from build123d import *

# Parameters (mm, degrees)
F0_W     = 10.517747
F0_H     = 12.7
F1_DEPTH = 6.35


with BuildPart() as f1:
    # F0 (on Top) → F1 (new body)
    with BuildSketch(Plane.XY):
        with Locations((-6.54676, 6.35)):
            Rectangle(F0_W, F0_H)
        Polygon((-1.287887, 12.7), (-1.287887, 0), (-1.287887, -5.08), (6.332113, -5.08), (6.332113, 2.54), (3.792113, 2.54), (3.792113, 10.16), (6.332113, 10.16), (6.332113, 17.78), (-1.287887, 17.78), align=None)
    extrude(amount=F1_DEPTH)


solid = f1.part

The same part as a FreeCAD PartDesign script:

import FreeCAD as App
import Part
import Sketcher
from FreeCAD import Vector
Q = App.Units.Quantity

doc = App.newDocument("Part")
params = doc.addObject("Spreadsheet::Sheet", "Params")
for row, (alias, value) in enumerate([
    ("sketch1_width", "0.3 in"),
    ("sketch1_width2", "0.1 in"),
    ("sketch1_height", "0.5 in"),
    ("pad1_length", "0.25 in"),
], start=1):
    params.set(f"A{row}", alias)
    params.set(f"B{row}", "=" + value)
    params.setAlias(f"B{row}", alias)

body = doc.addObject("PartDesign::Body", "Body")

# Sketch on XY plane
sketch1 = body.newObject("Sketcher::SketchObject", "Sketch")
sketch1.AttachmentSupport = (doc.getObject("XY_Plane"), [""])
sketch1.MapMode = "FlatFace"
sketch1.addGeometry(Part.LineSegment(Vector(-11.8, 12.7, 0), Vector(-11.8, 0, 0)), False)
sketch1.addGeometry(Part.LineSegment(Vector(-11.8, 0, 0), Vector(-1.3, 0, 0)), False)
sketch1.addGeometry(Part.LineSegment(Vector(-1.3, 0, 0), Vector(-1.3, -5.1, 0)), False)
sketch1.addGeometry(Part.LineSegment(Vector(-1.3, -5.1, 0), Vector(6.3, -5.1, 0)), False)
sketch1.addGeometry(Part.LineSegment(Vector(6.3, -5.1, 0), Vector(6.3, 2.5, 0)), False)
sketch1.addGeometry(Part.LineSegment(Vector(6.3, 2.5, 0), Vector(3.8, 2.5, 0)), False)
sketch1.addGeometry(Part.LineSegment(Vector(3.8, 2.5, 0), Vector(3.8, 10.2, 0)), False)
sketch1.addGeometry(Part.LineSegment(Vector(3.8, 10.2, 0), Vector(6.3, 10.2, 0)), False)
sketch1.addGeometry(Part.LineSegment(Vector(6.3, 10.2, 0), Vector(6.3, 17.8, 0)), False)
sketch1.addGeometry(Part.LineSegment(Vector(6.3, 17.8, 0), Vector(-1.3, 17.8, 0)), False)
sketch1.addGeometry(Part.LineSegment(Vector(-1.3, 17.8, 0), Vector(-1.3, 12.7, 0)), False)
sketch1.addGeometry(Part.LineSegment(Vector(-1.3, 12.7, 0), Vector(-11.8, 12.7, 0)), False)
sketch1.addConstraint(Sketcher.Constraint("Coincident", 0, 2, 1, 1))
sketch1.addConstraint(Sketcher.Constraint("Coincident", 1, 2, 2, 1))
sketch1.addConstraint(Sketcher.Constraint("Coincident", 2, 2, 3, 1))
sketch1.addConstraint(Sketcher.Constraint("Coincident", 3, 2, 4, 1))
sketch1.addConstraint(Sketcher.Constraint("Coincident", 4, 2, 5, 1))
sketch1.addConstraint(Sketcher.Constraint("Coincident", 5, 2, 6, 1))
sketch1.addConstraint(Sketcher.Constraint("Coincident", 6, 2, 7, 1))
sketch1.addConstraint(Sketcher.Constraint("Coincident", 7, 2, 8, 1))
sketch1.addConstraint(Sketcher.Constraint("Coincident", 8, 2, 9, 1))
sketch1.addConstraint(Sketcher.Constraint("Coincident", 9, 2, 10, 1))
sketch1.addConstraint(Sketcher.Constraint("Coincident", 10, 2, 11, 1))
sketch1.addConstraint(Sketcher.Constraint("Coincident", 11, 2, 0, 1))
sketch1.addConstraint(Sketcher.Constraint("Vertical", 0))
sketch1.addConstraint(Sketcher.Constraint("Horizontal", 1))
sketch1.addConstraint(Sketcher.Constraint("Vertical", 2))
sketch1.addConstraint(Sketcher.Constraint("Horizontal", 3))
sketch1.addConstraint(Sketcher.Constraint("Vertical", 4))
sketch1.addConstraint(Sketcher.Constraint("Horizontal", 5))
sketch1.addConstraint(Sketcher.Constraint("Vertical", 6))
sketch1.addConstraint(Sketcher.Constraint("Horizontal", 7))
sketch1.addConstraint(Sketcher.Constraint("Vertical", 8))
sketch1.addConstraint(Sketcher.Constraint("Horizontal", 9))
sketch1.addConstraint(Sketcher.Constraint("Vertical", 10))
sketch1.addConstraint(Sketcher.Constraint("Horizontal", 11))
sketch1.addConstraint(Sketcher.Constraint("PointOnObject", 0, 2, -1))
sketch1.addConstraint(Sketcher.Constraint("Vertical", 4, 2, 7, 2))
sketch1.addConstraint(Sketcher.Constraint("Vertical", 2, 2, 9, 2))
sketch1.addConstraint(Sketcher.Constraint("Equal", 9, 4))
sketch1.addConstraint(Sketcher.Constraint("Equal", 4, 6))
sketch1.addConstraint(Sketcher.Constraint("Equal", 6, 8))
sketch1.addConstraint(Sketcher.Constraint("Equal", 2, 10))
sketch1.addConstraint(Sketcher.Constraint("DistanceX", 3, 1, 3, 2, Q("0.3 in")))
sketch1.addConstraint(Sketcher.Constraint("DistanceX", 5, 2, 5, 1, Q("0.1 in")))
sketch1.addConstraint(Sketcher.Constraint("DistanceY", 0, 2, 0, 1, Q("0.5 in")))
sketch1.addConstraint(Sketcher.Constraint("DistanceX", 1, 1, 1, 2, 10.517747))
sketch1.addConstraint(Sketcher.Constraint("DistanceX", 0, 2, -1, 1, 11.805634))
sketch1.setExpression("Constraints[31]", "Params.sketch1_width")
sketch1.setExpression("Constraints[32]", "Params.sketch1_width2")
sketch1.setExpression("Constraints[33]", "Params.sketch1_height")
pad1 = body.newObject("PartDesign::Pad", "Pad")
pad1.Profile = sketch1
pad1.setExpression("Length", "Params.pad1_length")

doc.recompute()
